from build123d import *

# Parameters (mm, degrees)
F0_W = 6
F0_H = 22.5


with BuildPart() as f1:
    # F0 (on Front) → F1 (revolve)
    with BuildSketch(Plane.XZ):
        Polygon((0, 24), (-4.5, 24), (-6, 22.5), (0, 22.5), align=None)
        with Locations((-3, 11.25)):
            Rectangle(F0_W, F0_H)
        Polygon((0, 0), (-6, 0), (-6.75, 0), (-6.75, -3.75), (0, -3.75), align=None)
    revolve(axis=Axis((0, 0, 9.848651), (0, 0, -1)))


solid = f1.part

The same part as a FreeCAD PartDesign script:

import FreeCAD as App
import Part
import Sketcher
Q = App.Units.Quantity


def add_polygon(sketch, points):
    """Adds a closed chain of lines whose ends are joined by coincident constraints."""
    first, n = sketch.GeometryCount, len(points)
    for a, b in zip(points, points[1:] + points[:1]):
        sketch.addGeometry(Part.LineSegment(App.Vector(*a, 0), App.Vector(*b, 0)), False)
    for i in range(n):
        sketch.addConstraint(Sketcher.Constraint("Coincident", first + i, 2, first + (i + 1) % n, 1))

doc = App.newDocument("Part")
params = doc.addObject("Spreadsheet::Sheet", "Params")
for row, (alias, value) in enumerate([
    ("sketch1_width", "4.5 mm"),
    ("sketch1_height", "22.5 mm"),
    ("sketch1_width2", "0.75 mm"),
    ("sketch1_height2", "3.75 mm"),
    ("revolution_angle", "360 deg"),
], start=1):
    params.set(f"A{row}", alias)
    params.set(f"B{row}", "=" + value)
    params.setAlias(f"B{row}", alias)

body = doc.addObject("PartDesign::Body", "Body")

sketch1 = doc.addObject("Sketcher::SketchObject", "Sketch")
body.addObject(sketch1)
sketch1.AttachmentSupport = (doc.XZ_Plane, [""])
sketch1.MapMode = "FlatFace"
add_polygon(sketch1, [(0, 24), (-4.5, 24), (-6, 22.5), (-6, 0), (-6.8, 0), (-6.8, -3.8), (0, -3.8)])
sketch1.addConstraint([
    Sketcher.Constraint("Horizontal", 0),
    Sketcher.Constraint("Vertical", 2),
    Sketcher.Constraint("Horizontal", 3),
    Sketcher.Constraint("Vertical", 4),
    Sketcher.Constraint("Horizontal", 5),
    Sketcher.Constraint("Vertical", 6),
    Sketcher.Constraint("PointOnObject", 2, 2, -1),
    Sketcher.Constraint("PointOnObject", 5, 2, -2),
    Sketcher.Constraint("Angle", 1, Q("-135 deg")),
    Sketcher.Constraint("DistanceX", 0, 2, 0, 1, 4.5),
    Sketcher.Constraint("DistanceY", 2, 2, 2, 1, 22.5),
    Sketcher.Constraint("DistanceY", -1, 1, 0, 2, 24.0),
    Sketcher.Constraint("DistanceX", 3, 2, 3, 1, 0.75),
    Sketcher.Constraint("DistanceY", 4, 2, 4, 1, 3.75),
])
sketch1.setExpression("Constraints[16]", "Params.sketch1_width")
sketch1.setExpression("Constraints[17]", "Params.sketch1_height")
sketch1.setExpression("Constraints[19]", "Params.sketch1_width2")
sketch1.setExpression("Constraints[20]", "Params.sketch1_height2")
revolution = doc.addObject("PartDesign::Revolution", "Revolution")
body.addObject(revolution)
revolution.Profile = sketch1
revolution.ReferenceAxis = (sketch1, ["V_Axis"])
revolution.setExpression("Angle", "Params.revolution_angle")

doc.recompute()
